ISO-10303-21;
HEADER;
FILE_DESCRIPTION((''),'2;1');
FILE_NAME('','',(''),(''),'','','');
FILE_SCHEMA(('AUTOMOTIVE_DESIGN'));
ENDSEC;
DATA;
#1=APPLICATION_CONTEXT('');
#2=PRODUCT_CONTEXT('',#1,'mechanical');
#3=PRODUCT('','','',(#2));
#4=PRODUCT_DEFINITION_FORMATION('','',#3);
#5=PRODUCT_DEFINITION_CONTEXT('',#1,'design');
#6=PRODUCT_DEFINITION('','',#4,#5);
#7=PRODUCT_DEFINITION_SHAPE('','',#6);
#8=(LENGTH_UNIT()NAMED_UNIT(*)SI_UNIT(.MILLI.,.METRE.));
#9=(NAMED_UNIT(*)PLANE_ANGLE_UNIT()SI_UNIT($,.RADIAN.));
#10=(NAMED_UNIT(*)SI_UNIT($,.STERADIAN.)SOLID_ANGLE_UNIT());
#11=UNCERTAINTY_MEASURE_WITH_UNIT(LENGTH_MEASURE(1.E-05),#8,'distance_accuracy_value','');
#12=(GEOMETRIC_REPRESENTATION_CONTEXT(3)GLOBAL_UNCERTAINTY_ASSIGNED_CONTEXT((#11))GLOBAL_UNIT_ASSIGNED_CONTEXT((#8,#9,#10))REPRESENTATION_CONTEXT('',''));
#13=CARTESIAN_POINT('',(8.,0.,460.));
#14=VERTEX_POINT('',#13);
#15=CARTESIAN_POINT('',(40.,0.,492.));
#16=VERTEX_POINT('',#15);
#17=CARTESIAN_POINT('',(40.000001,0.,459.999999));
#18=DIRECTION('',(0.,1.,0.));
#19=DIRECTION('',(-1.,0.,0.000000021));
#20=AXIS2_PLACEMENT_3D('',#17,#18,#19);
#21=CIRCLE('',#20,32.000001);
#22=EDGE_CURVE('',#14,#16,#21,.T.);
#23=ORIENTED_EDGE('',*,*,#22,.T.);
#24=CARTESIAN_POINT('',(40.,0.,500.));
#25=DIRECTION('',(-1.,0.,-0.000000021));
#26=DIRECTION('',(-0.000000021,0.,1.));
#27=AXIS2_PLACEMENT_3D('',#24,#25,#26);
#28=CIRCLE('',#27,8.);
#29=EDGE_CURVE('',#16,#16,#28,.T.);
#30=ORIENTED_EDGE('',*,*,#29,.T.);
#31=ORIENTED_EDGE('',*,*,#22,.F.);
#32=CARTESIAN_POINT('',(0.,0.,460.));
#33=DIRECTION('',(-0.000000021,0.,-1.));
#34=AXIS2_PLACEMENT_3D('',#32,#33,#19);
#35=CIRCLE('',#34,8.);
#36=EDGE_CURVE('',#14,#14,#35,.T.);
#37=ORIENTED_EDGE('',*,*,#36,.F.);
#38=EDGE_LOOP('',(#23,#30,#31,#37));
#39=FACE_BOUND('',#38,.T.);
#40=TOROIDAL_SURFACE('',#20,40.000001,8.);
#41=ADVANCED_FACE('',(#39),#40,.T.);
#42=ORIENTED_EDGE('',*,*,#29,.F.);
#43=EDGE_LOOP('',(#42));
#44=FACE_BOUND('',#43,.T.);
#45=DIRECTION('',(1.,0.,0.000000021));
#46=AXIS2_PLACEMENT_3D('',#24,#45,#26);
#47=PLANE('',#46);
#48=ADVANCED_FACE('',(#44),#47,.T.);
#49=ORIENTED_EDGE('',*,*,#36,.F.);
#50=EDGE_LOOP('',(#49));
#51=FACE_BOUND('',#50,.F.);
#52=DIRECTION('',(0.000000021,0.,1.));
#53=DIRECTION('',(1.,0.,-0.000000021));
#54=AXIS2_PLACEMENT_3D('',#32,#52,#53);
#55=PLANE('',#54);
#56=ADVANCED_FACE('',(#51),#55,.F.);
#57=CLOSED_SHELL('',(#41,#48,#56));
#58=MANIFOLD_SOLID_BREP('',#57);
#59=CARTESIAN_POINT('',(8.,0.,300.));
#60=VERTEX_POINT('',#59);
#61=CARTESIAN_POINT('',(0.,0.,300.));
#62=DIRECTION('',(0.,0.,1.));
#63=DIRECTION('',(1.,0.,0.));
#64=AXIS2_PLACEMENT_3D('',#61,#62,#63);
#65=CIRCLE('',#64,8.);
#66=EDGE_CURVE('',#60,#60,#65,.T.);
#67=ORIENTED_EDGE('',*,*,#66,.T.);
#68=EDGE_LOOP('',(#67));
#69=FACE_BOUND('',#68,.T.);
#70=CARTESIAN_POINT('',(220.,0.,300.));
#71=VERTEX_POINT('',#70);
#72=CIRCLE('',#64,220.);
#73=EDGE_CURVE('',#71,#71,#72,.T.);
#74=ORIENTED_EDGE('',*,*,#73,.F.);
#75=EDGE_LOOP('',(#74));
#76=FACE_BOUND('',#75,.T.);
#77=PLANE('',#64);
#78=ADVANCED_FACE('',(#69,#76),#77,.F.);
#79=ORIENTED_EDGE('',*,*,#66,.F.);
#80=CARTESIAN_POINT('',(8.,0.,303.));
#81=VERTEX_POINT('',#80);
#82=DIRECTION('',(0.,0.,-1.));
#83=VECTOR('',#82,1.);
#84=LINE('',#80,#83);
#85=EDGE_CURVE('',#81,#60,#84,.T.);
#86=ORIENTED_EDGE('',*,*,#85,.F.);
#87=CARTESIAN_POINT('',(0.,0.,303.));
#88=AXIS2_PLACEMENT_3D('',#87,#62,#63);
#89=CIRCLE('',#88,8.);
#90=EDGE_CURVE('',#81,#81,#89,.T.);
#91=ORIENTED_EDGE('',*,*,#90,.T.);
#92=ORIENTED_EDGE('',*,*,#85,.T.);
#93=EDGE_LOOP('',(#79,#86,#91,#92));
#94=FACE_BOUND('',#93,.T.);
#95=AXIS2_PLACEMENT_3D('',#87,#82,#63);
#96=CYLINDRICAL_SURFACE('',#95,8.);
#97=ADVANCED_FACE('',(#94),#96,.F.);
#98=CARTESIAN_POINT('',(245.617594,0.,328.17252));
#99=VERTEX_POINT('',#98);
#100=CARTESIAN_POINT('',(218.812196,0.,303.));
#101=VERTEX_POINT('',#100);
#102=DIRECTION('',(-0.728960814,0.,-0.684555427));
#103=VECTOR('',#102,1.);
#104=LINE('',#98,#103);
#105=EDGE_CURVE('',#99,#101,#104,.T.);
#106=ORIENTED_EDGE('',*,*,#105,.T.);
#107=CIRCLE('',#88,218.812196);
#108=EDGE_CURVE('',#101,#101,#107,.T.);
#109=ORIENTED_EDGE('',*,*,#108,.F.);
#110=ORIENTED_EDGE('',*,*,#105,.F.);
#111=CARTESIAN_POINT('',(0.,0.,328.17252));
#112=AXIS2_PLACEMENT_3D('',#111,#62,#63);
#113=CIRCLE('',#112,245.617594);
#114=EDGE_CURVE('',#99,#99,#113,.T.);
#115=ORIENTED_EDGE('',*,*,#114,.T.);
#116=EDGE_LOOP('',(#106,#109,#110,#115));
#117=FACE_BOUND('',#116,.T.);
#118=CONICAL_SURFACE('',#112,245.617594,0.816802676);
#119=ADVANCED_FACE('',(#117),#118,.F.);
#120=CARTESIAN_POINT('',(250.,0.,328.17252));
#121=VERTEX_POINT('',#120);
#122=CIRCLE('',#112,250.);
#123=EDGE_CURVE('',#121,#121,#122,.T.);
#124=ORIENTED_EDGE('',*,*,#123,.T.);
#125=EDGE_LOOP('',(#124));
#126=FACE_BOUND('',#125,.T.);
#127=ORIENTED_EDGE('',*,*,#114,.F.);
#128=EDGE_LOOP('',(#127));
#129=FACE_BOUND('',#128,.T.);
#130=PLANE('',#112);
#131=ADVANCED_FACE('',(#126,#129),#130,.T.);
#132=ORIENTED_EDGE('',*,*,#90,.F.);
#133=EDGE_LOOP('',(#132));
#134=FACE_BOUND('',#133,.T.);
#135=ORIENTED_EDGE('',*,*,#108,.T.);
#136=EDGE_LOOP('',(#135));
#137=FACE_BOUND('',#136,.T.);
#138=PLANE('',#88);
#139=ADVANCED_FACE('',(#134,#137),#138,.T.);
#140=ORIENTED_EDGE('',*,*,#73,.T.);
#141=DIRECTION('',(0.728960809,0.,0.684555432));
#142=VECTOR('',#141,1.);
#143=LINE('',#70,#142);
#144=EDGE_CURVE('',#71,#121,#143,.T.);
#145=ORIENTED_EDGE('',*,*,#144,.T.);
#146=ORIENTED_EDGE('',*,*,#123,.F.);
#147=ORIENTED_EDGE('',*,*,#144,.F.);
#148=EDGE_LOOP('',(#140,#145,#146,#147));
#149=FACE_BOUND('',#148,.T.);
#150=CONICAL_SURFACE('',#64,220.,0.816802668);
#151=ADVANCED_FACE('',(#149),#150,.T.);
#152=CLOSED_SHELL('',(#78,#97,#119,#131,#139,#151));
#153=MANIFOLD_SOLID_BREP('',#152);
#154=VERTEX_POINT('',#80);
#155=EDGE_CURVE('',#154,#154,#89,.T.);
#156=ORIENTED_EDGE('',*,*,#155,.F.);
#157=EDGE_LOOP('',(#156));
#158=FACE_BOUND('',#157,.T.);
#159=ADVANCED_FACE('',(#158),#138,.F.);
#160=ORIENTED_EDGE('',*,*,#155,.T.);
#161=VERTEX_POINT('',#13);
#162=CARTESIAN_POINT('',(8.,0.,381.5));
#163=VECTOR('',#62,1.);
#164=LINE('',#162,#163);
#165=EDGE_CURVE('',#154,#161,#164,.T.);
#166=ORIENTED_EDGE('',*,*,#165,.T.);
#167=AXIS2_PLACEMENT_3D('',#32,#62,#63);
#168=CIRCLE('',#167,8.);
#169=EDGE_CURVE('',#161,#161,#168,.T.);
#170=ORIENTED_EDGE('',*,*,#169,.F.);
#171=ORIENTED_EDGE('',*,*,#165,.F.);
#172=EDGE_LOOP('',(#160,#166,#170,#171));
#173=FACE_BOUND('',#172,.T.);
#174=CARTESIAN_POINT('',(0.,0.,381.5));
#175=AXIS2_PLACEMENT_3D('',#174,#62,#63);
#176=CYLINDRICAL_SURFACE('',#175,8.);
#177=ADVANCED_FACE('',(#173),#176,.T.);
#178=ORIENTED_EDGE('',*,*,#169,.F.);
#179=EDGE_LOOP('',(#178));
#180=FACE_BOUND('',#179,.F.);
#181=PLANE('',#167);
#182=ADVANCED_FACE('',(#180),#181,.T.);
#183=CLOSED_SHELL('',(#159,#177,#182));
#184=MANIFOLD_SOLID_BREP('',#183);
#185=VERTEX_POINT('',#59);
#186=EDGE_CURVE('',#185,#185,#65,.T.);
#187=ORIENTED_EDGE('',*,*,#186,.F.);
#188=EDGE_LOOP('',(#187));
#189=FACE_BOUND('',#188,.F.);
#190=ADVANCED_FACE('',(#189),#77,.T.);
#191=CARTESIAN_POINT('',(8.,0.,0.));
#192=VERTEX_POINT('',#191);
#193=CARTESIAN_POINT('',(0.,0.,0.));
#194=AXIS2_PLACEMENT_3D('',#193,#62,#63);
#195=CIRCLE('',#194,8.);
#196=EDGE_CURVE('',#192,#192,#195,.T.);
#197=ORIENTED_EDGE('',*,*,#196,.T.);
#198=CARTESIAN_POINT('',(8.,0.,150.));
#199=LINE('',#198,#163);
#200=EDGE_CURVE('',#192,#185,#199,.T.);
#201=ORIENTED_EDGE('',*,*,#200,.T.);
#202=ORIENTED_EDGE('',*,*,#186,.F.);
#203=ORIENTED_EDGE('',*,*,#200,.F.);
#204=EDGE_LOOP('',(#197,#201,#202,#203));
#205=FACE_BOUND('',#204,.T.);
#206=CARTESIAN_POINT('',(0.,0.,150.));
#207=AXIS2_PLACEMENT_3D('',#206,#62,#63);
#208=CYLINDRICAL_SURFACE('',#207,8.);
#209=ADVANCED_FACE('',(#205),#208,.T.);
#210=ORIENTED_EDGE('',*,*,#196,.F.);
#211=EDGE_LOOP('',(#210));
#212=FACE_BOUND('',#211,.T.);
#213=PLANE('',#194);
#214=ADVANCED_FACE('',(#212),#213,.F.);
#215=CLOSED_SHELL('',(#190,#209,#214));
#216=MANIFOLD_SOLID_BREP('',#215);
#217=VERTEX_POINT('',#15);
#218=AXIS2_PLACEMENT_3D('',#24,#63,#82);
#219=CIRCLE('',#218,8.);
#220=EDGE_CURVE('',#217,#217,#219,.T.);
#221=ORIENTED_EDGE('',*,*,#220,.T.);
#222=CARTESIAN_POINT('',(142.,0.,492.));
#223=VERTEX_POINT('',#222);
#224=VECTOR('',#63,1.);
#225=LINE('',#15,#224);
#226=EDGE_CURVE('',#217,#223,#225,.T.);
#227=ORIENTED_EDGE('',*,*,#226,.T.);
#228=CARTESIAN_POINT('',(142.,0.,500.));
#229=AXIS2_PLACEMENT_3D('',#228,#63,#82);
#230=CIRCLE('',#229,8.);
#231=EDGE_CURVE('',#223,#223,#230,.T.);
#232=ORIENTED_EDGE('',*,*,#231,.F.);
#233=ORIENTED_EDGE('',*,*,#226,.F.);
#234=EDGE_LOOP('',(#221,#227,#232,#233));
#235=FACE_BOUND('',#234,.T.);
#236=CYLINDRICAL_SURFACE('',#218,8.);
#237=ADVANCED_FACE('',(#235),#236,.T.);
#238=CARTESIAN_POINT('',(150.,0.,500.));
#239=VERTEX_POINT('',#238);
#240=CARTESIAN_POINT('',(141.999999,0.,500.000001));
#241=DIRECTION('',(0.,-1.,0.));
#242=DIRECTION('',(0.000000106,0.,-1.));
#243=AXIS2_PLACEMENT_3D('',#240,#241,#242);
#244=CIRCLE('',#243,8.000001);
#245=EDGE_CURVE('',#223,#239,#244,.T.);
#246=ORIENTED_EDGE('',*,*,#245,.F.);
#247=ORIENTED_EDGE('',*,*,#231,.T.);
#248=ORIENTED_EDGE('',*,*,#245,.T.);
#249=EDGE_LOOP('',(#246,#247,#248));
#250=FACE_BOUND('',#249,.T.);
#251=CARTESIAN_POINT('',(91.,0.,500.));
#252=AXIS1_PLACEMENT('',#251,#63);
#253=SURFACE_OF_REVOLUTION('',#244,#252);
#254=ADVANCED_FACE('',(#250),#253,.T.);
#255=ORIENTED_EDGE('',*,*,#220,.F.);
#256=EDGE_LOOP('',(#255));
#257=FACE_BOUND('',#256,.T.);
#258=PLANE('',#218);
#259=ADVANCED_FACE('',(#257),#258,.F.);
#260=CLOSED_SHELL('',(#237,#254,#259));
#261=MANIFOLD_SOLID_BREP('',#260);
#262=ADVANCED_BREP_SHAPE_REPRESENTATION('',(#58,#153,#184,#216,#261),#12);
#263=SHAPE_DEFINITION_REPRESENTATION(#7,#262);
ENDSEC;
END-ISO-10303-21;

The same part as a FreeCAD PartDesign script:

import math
import FreeCAD as App
import Part
import Sketcher
from FreeCAD import Vector


def add_polygon(sketch, points):
    """Adds a closed chain of lines whose ends are joined by coincident constraints."""
    first, n = sketch.GeometryCount, len(points)
    for a, b in zip(points, points[1:] + points[:1]):
        sketch.addGeometry(Part.LineSegment(App.Vector(*a, 0), App.Vector(*b, 0)), False)
    for i in range(n):
        sketch.addConstraint(Sketcher.Constraint("Coincident", first + i, 2, first + (i + 1) % n, 1))

doc = App.newDocument("Part")
params = doc.addObject("Spreadsheet::Sheet", "Params")
for row, (alias, value) in enumerate([
    ("sketch1_width", "212 mm"),
    ("sketch1_height", "3 mm"),
    ("revolution_angle", "360 deg"),
    ("sketch2_width", "8 mm"),
    ("sketch2_height", "157 mm"),
    ("revolution2_angle", "360 deg"),
    ("sketch3_radius", "8.000001 mm"),
    ("sketch3_width", "102 mm"),
    ("sketch3_height", "8 mm"),
    ("revolution3_angle", "360 deg"),
    ("sketch4_width", "8 mm"),
    ("sketch4_height", "300 mm"),
    ("revolution4_angle", "360 deg"),
    ("sketch5_diameter", "16 mm"),
    ("sketch6_radius", "40.000001 mm"),
], start=1):
    params.set(f"A{row}", alias)
    params.set(f"B{row}", "=" + value)
    params.setAlias(f"B{row}", alias)

body = doc.addObject("PartDesign::Body", "Body")

# Sketch on XZ plane
sketch1 = doc.addObject("Sketcher::SketchObject", "Sketch")
body.addObject(sketch1)
sketch1.AttachmentSupport = (doc.XZ_Plane, [""])
sketch1.MapMode = "FlatFace"
add_polygon(sketch1, [(8, 303), (8, 300), (220, 300), (250, 328.2), (245.6, 328.2), (218.8, 303)])  # lines 0-5
sketch1.addConstraint(Sketcher.Constraint("Vertical", 0))
sketch1.addConstraint(Sketcher.Constraint("Horizontal", 1))
sketch1.addConstraint(Sketcher.Constraint("Horizontal", 3))
sketch1.addConstraint(Sketcher.Constraint("Horizontal", 5))
sketch1.addConstraint(Sketcher.Constraint("Parallel", 2, 4))
sketch1.addConstraint(Sketcher.Constraint("DistanceX", 1, 1, 1, 2, 212.0))
sketch1.addConstraint(Sketcher.Constraint("DistanceY", 0, 2, 0, 1, 3.0))
sketch1.addConstraint(Sketcher.Constraint("DistanceX", -1, 1, 0, 2, 8.0))
sketch1.addConstraint(Sketcher.Constraint("DistanceY", -1, 1, 0, 2, 300.0))
sketch1.addConstraint(Sketcher.Constraint("DistanceX", -1, 1, 2, 2, 250.0))
sketch1.addConstraint(Sketcher.Constraint("Distance", 4, 36.77207))
sketch1.addConstraint(Sketcher.Constraint("DistanceX", 3, 2, 3, 1, 4.382406))
sketch1.setExpression("Constraints[11]", "Params.sketch1_width")
sketch1.setExpression("Constraints[12]", "Params.sketch1_height")
revolution = doc.addObject("PartDesign::Revolution", "Revolution")
body.addObject(revolution)
revolution.Profile = sketch1
revolution.ReferenceAxis = (sketch1, ["V_Axis"])
revolution.setExpression("Angle", "Params.revolution_angle")
body2 = doc.addObject("PartDesign::Body", "Body001")

# Sketch on XZ plane
sketch2 = doc.addObject("Sketcher::SketchObject", "Sketch001")
body2.addObject(sketch2)
sketch2.AttachmentSupport = (doc.getObject("XZ_Plane001"), [""])
sketch2.MapMode = "FlatFace"
add_polygon(sketch2, [(0, 460), (0, 303), (8, 303), (8, 460)])  # lines 0-3
sketch2.addConstraint(Sketcher.Constraint("Vertical", 0))
sketch2.addConstraint(Sketcher.Constraint("Horizontal", 1))
sketch2.addConstraint(Sketcher.Constraint("Vertical", 2))
sketch2.addConstraint(Sketcher.Constraint("Horizontal", 3))
sketch2.addConstraint(Sketcher.Constraint("PointOnObject", 0, 2, -2))
sketch2.addConstraint(Sketcher.Constraint("DistanceX", 1, 1, 1, 2, 8.0))
sketch2.addConstraint(Sketcher.Constraint("DistanceY", 0, 2, 0, 1, 157.0))
sketch2.addConstraint(Sketcher.Constraint("DistanceY", -1, 1, 0, 2, 303.0))
sketch2.setExpression("Constraints[9]", "Params.sketch2_width")
sketch2.setExpression("Constraints[10]", "Params.sketch2_height")
revolution2 = doc.addObject("PartDesign::Revolution", "Revolution001")
body2.addObject(revolution2)
revolution2.Profile = sketch2
revolution2.ReferenceAxis = (sketch2, ["V_Axis"])
revolution2.setExpression("Angle", "Params.revolution2_angle")
body3 = doc.addObject("PartDesign::Body", "Body002")

# Sketch on XZ plane
sketch3 = doc.addObject("Sketcher::SketchObject", "Sketch002")
body3.addObject(sketch3)
sketch3.AttachmentSupport = (doc.getObject("XZ_Plane002"), [""])
sketch3.MapMode = "FlatFace"
sketch3.addGeometry(Part.LineSegment(Vector(40, 500, 0), Vector(40, 492, 0)), False)
sketch3.addGeometry(Part.LineSegment(Vector(40, 492, 0), Vector(142, 492, 0)), False)
sketch3.addGeometry(Part.ArcOfCircle(Part.Circle(Vector(142, 500, 0), Vector(0, 0, 1), 8), math.radians(-90), math.radians(0)), False)
sketch3.addGeometry(Part.LineSegment(Vector(150, 500, 0), Vector(40, 500, 0)), False)
sketch3.addGeometry(Part.LineSegment(Vector(40, 500, 0), Vector(150, 500, 0)), True)  # axis
sketch3.addConstraint(Sketcher.Constraint("Coincident", 0, 2, 1, 1))
sketch3.addConstraint(Sketcher.Constraint("Tangent", 1, 2, 2, 1))
sketch3.addConstraint(Sketcher.Constraint("Coincident", 2, 2, 3, 1))
sketch3.addConstraint(Sketcher.Constraint("Coincident", 3, 2, 0, 1))
sketch3.addConstraint(Sketcher.Constraint("Vertical", 0))
sketch3.addConstraint(Sketcher.Constraint("Horizontal", 1))
sketch3.addConstraint(Sketcher.Constraint("Horizontal", 3))
sketch3.addConstraint(Sketcher.Constraint("Horizontal", 4))
sketch3.addConstraint(Sketcher.Constraint("Coincident", 4, 1, 3, 2))
sketch3.addConstraint(Sketcher.Constraint("Equal", 3, 4))
sketch3.addConstraint(Sketcher.Constraint("Radius", 2, 8.000001))
sketch3.addConstraint(Sketcher.Constraint("DistanceX", 1, 1, 1, 2, 102.0))
sketch3.addConstraint(Sketcher.Constraint("DistanceY", 0, 2, 0, 1, 8.0))
sketch3.addConstraint(Sketcher.Constraint("DistanceX", -1, 1, 2, 3, 141.999999))
sketch3.addConstraint(Sketcher.Constraint("DistanceY", -1, 1, 2, 3, 500.000001))
sketch3.setExpression("Constraints[10]", "Params.sketch3_radius")
sketch3.setExpression("Constraints[11]", "Params.sketch3_width")
sketch3.setExpression("Constraints[12]", "Params.sketch3_height")
revolution3 = doc.addObject("PartDesign::Revolution", "Revolution002")
body3.addObject(revolution3)
revolution3.Profile = sketch3
revolution3.ReferenceAxis = (sketch3, ["Axis0"])
revolution3.setExpression("Angle", "Params.revolution3_angle")
body4 = doc.addObject("PartDesign::Body", "Body003")

# Sketch on XZ plane
sketch4 = doc.addObject("Sketcher::SketchObject", "Sketch003")
body4.addObject(sketch4)
sketch4.AttachmentSupport = (doc.getObject("XZ_Plane003"), [""])
sketch4.MapMode = "FlatFace"
add_polygon(sketch4, [(0, 300), (0, 0), (8, 0), (8, 300)])  # lines 0-3
sketch4.addConstraint(Sketcher.Constraint("Vertical", 0))
sketch4.addConstraint(Sketcher.Constraint("Horizontal", 1))
sketch4.addConstraint(Sketcher.Constraint("Vertical", 2))
sketch4.addConstraint(Sketcher.Constraint("Horizontal", 3))
sketch4.addConstraint(Sketcher.Constraint("Coincident", 0, 2, -1, 1))
sketch4.addConstraint(Sketcher.Constraint("DistanceX", 1, 1, 1, 2, 8.0))
sketch4.addConstraint(Sketcher.Constraint("DistanceY", 0, 2, 0, 1, 300.0))
sketch4.setExpression("Constraints[9]", "Params.sketch4_width")
sketch4.setExpression("Constraints[10]", "Params.sketch4_height")
revolution4 = doc.addObject("PartDesign::Revolution", "Revolution003")
body4.addObject(revolution4)
revolution4.Profile = sketch4
revolution4.ReferenceAxis = (sketch4, ["V_Axis"])
revolution4.setExpression("Angle", "Params.revolution4_angle")
body5 = doc.addObject("PartDesign::Body", "Body004")

# Sketch on XY plane
sketch5 = doc.addObject("Sketcher::SketchObject", "Sketch004")
body5.addObject(sketch5)
sketch5.AttachmentSupport = (doc.getObject("XY_Plane004"), [""])
sketch5.MapMode = "FlatFace"
sketch5.AttachmentOffset = App.Placement(Vector(0, 0, 460), App.Rotation())
sketch5.addGeometry(Part.Circle(Vector(0, 0, 0), Vector(0, 0, 1), 8), False)
sketch5.addConstraint(Sketcher.Constraint("Coincident", 0, 3, -1, 1))
sketch5.addConstraint(Sketcher.Constraint("Diameter", 0, 16.0))
sketch5.setExpression("Constraints[1]", "Params.sketch5_diameter")

# Sketch on XZ plane
sketch6 = doc.addObject("Sketcher::SketchObject", "Sketch005")
body5.addObject(sketch6)
sketch6.AttachmentSupport = (doc.getObject("XZ_Plane004"), [""])
sketch6.MapMode = "FlatFace"
sketch6.addGeometry(Part.ArcOfCircle(Part.Circle(Vector(40, 460, 0), Vector(0, 0, 1), 40), math.radians(90), math.radians(180)), False)
sketch6.addConstraint(Sketcher.Constraint("PointOnObject", 0, 2, -2))
sketch6.addConstraint(Sketcher.Constraint("Radius", 0, 40.000001))
sketch6.addConstraint(Sketcher.Constraint("DistanceY", -1, 1, 0, 3, 459.999999))
sketch6.addConstraint(Sketcher.Constraint("DistanceX", -1, 1, 0, 1, 40.0))
sketch6.addConstraint(Sketcher.Constraint("DistanceY", -1, 1, 0, 2, 460.0))
sketch6.setExpression("Constraints[1]", "Params.sketch6_radius")
doc.recompute()

additivepipe = doc.addObject("PartDesign::AdditivePipe", "AdditivePipe")
body5.addObject(additivepipe)
additivepipe.Profile = sketch5
additivepipe.Spine = (sketch6, ["Edge1"])

doc.recompute()
